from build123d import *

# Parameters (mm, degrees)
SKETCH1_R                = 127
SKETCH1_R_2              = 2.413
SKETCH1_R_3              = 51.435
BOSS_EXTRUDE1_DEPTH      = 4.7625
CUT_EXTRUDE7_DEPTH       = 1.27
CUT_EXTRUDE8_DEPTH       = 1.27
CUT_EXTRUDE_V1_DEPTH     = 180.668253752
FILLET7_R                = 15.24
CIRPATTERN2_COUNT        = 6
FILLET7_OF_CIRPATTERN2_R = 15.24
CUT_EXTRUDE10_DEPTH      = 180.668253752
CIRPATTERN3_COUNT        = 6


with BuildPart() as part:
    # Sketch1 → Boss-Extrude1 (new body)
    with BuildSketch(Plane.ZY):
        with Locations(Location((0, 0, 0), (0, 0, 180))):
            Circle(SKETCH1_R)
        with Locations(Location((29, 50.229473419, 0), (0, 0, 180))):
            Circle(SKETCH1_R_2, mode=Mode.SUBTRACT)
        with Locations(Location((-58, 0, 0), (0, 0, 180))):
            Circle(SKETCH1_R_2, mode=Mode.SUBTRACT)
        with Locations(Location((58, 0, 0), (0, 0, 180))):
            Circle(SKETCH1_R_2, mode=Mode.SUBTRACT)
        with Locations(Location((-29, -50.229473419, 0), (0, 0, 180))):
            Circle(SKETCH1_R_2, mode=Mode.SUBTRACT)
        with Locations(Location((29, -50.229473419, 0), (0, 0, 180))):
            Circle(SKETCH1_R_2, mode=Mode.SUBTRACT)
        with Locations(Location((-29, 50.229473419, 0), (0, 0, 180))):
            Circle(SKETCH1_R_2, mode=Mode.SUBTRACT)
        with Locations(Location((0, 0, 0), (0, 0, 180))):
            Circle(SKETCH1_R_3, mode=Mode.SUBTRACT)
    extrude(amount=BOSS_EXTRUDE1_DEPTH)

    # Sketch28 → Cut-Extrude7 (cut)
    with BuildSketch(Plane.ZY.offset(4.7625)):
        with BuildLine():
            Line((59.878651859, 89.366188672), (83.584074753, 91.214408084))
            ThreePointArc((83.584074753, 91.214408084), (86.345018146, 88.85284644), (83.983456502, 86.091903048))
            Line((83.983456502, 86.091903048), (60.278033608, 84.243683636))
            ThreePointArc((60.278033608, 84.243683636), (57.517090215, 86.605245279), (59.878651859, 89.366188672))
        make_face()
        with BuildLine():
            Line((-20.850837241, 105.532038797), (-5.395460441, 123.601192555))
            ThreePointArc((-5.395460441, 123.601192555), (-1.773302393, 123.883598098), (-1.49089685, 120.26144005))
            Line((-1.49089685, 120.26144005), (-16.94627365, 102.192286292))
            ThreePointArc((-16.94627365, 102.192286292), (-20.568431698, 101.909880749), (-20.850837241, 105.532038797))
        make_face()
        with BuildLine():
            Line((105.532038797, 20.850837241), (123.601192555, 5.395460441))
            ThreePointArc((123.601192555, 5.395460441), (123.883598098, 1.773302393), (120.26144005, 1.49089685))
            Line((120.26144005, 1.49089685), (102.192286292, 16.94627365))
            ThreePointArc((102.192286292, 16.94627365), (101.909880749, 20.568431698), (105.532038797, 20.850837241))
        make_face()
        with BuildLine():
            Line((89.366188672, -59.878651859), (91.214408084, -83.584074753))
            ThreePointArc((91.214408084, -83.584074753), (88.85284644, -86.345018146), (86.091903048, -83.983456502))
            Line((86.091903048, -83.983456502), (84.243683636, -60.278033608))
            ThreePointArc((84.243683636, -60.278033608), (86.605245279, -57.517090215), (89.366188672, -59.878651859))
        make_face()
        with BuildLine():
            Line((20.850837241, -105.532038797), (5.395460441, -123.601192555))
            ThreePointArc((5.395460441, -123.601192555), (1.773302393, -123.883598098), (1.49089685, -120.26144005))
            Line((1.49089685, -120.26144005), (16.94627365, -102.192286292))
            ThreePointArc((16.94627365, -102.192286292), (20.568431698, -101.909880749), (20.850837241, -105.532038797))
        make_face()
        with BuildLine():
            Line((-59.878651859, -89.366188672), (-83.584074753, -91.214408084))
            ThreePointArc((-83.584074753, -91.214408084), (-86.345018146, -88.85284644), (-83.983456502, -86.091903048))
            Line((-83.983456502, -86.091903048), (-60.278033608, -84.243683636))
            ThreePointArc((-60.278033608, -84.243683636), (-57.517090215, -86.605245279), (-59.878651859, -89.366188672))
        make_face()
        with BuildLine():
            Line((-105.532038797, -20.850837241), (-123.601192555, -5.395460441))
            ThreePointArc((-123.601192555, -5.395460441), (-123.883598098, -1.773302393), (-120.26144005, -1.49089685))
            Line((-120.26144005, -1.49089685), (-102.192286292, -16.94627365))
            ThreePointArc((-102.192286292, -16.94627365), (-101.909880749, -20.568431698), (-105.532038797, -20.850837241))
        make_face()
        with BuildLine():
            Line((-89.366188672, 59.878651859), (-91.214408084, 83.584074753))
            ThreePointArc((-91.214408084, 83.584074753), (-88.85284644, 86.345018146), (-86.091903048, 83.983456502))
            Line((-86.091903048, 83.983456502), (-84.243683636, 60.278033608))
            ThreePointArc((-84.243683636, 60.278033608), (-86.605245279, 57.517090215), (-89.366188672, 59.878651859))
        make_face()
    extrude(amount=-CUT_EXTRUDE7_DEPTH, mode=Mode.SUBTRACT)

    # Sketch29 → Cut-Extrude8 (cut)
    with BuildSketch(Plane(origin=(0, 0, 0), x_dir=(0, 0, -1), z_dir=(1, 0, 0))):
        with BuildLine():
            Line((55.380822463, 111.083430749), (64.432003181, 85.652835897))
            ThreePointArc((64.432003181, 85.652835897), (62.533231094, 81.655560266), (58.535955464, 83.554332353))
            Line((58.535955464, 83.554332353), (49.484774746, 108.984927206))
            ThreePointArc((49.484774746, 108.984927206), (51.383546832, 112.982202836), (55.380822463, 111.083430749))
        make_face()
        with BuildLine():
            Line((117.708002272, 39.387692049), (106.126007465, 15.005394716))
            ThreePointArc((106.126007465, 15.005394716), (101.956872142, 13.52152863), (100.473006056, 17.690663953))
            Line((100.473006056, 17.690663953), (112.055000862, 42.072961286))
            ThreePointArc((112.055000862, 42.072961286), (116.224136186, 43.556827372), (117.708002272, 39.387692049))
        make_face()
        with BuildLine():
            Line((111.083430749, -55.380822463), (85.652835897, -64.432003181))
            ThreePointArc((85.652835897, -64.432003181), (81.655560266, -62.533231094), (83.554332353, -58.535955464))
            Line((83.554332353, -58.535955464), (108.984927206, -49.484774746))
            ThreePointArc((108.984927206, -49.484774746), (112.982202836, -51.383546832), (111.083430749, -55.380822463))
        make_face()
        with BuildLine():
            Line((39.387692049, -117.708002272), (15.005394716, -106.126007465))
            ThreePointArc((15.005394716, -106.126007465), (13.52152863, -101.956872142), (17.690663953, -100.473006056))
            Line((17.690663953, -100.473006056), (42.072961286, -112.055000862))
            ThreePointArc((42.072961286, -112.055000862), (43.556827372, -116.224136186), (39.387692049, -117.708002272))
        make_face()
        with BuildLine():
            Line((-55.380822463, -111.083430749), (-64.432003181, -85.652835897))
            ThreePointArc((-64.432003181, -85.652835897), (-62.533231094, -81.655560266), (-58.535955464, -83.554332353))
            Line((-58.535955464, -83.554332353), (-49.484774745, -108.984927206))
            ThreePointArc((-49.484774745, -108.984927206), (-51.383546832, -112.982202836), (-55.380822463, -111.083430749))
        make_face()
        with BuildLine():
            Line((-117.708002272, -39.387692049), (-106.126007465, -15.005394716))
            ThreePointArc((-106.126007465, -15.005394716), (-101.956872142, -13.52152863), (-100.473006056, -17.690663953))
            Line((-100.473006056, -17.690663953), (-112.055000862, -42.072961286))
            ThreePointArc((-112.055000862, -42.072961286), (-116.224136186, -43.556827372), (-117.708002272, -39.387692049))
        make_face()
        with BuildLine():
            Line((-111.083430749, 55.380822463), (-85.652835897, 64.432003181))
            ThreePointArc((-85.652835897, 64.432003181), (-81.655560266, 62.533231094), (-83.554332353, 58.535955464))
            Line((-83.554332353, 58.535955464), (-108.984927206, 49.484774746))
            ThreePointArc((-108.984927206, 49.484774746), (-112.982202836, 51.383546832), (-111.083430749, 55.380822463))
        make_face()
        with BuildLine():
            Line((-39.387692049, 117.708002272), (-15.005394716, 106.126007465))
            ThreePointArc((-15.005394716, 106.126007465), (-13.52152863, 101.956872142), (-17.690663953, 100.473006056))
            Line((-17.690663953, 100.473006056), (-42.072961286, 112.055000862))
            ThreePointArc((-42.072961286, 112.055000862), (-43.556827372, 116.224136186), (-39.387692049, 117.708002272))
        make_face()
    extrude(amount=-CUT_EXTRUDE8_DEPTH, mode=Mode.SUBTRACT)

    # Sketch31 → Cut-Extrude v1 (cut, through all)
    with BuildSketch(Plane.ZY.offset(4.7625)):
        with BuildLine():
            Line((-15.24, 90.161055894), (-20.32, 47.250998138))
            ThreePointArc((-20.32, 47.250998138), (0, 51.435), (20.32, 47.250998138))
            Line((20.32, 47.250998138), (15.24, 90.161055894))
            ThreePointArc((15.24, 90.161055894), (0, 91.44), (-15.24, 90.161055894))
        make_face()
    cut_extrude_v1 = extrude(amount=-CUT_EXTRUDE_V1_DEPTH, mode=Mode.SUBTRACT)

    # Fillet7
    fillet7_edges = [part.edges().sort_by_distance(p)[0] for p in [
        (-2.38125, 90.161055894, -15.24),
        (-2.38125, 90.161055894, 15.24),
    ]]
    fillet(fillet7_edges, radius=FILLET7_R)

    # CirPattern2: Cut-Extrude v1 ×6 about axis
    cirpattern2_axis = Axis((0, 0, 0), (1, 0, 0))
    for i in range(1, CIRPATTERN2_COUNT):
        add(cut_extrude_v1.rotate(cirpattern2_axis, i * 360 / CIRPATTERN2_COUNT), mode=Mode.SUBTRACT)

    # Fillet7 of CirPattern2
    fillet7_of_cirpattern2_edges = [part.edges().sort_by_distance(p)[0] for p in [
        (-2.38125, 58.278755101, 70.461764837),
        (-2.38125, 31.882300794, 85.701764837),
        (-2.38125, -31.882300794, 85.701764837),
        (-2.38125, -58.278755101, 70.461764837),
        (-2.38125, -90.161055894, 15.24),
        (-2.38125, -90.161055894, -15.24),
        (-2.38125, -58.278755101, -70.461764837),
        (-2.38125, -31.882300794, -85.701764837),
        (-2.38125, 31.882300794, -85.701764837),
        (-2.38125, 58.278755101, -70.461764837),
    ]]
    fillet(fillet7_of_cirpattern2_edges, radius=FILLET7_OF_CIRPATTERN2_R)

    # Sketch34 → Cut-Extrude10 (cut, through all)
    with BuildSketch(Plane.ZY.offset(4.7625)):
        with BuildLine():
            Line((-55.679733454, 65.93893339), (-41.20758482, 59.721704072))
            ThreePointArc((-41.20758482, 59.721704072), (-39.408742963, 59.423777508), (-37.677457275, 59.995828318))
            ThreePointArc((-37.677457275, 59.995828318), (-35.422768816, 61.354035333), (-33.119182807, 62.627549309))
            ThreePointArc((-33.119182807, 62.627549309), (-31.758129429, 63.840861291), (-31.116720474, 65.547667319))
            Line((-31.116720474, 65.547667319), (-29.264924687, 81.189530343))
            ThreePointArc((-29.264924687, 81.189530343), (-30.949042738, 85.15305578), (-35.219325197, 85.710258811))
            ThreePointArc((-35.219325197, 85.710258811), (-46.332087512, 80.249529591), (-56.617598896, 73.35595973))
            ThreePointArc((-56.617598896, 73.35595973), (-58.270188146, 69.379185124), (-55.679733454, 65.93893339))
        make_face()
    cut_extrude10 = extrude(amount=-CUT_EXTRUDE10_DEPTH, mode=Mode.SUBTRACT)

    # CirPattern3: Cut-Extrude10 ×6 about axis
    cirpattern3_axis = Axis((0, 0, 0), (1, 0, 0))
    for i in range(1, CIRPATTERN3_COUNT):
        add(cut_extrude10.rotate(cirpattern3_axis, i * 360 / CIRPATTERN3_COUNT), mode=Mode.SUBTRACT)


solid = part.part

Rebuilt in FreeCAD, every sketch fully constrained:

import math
import FreeCAD as App
import Part
import Sketcher

V = App.Vector
Q = App.Units.Quantity


def edges_at(feature, points):
    """Names of the edges that pass closest to the given points."""
    edges = feature.Shape.Edges
    near = lambda p: min(range(len(edges)), key=lambda i: edges[i].distToShape(Part.Vertex(*p))[0])
    return sorted({f"Edge{near(p) + 1}" for p in points})

doc = App.newDocument("Part")
params = doc.addObject("Spreadsheet::Sheet", "Params")
for row, (alias, value) in enumerate([
    ("sketch1_diameter", "10 in"),
    ("sketch1_diameter2", "0.19 in"),
    ("sketch1_diameter3", "4.05 in"),
    ("pad1_length", "0.1875 in"),
    ("pocket1_length", "0.05 in"),
    ("pocket2_length", "0.05 in"),
    ("sketch4_radius", "3.6 in"),
    ("sketch4_radius2", "2.025 in"),
    ("fillet_radius", "0.6 in"),
    ("fillet2_radius", "0.6 in"),
    ("sketch5_radius", "0.15 in"),
], start=1):
    params.set(f"A{row}", alias)
    params.set(f"B{row}", "=" + value)
    params.setAlias(f"B{row}", alias)

body = doc.addObject("PartDesign::Body", "Body")

sketch1 = body.newObject("Sketcher::SketchObject", "Sketch")
sketch1.AttachmentSupport = (doc.getObject("YZ_Plane"), [""])
sketch1.MapMode = "FlatFace"
sketch1.addGeometry(Part.Circle(V(0, 0, 0), V(0, 0, 1), 127), False)
sketch1.addGeometry(Part.Circle(V(50.2, 29, 0), V(0, 0, 1), 2.4), False)
sketch1.addGeometry(Part.Circle(V(0, 58, 0), V(0, 0, 1), 2.4), False)
sketch1.addGeometry(Part.Circle(V(50.2, -29, 0), V(0, 0, 1), 2.4), False)
sketch1.addGeometry(Part.Circle(V(-50.2, 29, 0), V(0, 0, 1), 2.4), False)
sketch1.addGeometry(Part.Circle(V(0, 0, 0), V(0, 0, 1), 51.4), False)
sketch1.addGeometry(Part.Circle(V(0, -58, 0), V(0, 0, 1), 2.4), False)
sketch1.addGeometry(Part.Circle(V(-50.2, -29, 0), V(0, 0, 1), 2.4), False)
sketch1.addConstraint(Sketcher.Constraint("Coincident", 0, 3, -1, 1))
sketch1.addConstraint(Sketcher.Constraint("Coincident", 5, 3, -1, 1))
sketch1.addConstraint(Sketcher.Constraint("Equal", 1, 2))
sketch1.addConstraint(Sketcher.Constraint("Equal", 2, 3))
sketch1.addConstraint(Sketcher.Constraint("Equal", 3, 4))
sketch1.addConstraint(Sketcher.Constraint("Equal", 4, 6))
sketch1.addConstraint(Sketcher.Constraint("Equal", 6, 7))
sketch1.addConstraint(Sketcher.Constraint("Symmetric", 3, 3, 4, 3, -1, 1))
sketch1.addConstraint(Sketcher.Constraint("Symmetric", 2, 3, 6, 3, -1, 1))
sketch1.addConstraint(Sketcher.Constraint("Symmetric", 1, 3, 7, 3, -1, 1))
sketch1.addConstraint(Sketcher.Constraint("Symmetric", 1, 3, 4, 3, -2))
sketch1.addConstraint(Sketcher.Constraint("PointOnObject", 2, 3, -2))
sketch1.addConstraint(Sketcher.Constraint("Diameter", 0, Q("10 in")))
sketch1.addConstraint(Sketcher.Constraint("Diameter", 1, Q("0.19 in")))
sketch1.addConstraint(Sketcher.Constraint("Diameter", 5, Q("4.05 in")))
sketch1.addConstraint(Sketcher.Constraint("DistanceY", -1, 1, 1, 3, 29.0))
sketch1.addConstraint(Sketcher.Constraint("DistanceY", -1, 1, 2, 3, 58.0))
sketch1.addConstraint(Sketcher.Constraint("DistanceX", -1, 1, 1, 3, 50.229473))
sketch1.setExpression("Constraints[12]", "Params.sketch1_diameter")
sketch1.setExpression("Constraints[13]", "Params.sketch1_diameter2")
sketch1.setExpression("Constraints[14]", "Params.sketch1_diameter3")
pad1 = body.newObject("PartDesign::Pad", "Pad")
pad1.Profile = sketch1
pad1.setExpression("Length", "Params.pad1_length")
pad1.Reversed = True

sketch2 = body.newObject("Sketcher::SketchObject", "Sketch001")
sketch2.AttachmentSupport = (doc.getObject("YZ_Plane"), [""])
sketch2.MapMode = "FlatFace"
sketch2.AttachmentOffset = App.Placement(V(0, 0, -0.1875 * 25.4), App.Rotation())
sketch2.addGeometry(Part.LineSegment(V(91.2, 83.6, 0), V(89.4, 59.9, 0)), False)
sketch2.addGeometry(Part.ArcOfCircle(Part.Circle(V(86.8, 60.1, 0), V(0, 0, 1), 2.6), math.radians(176), math.radians(356)), False)
sketch2.addGeometry(Part.LineSegment(V(84.2, 60.3, 0), V(86.1, 84, 0)), False)
sketch2.addGeometry(Part.ArcOfCircle(Part.Circle(V(88.7, 83.8, 0), V(0, 0, 1), 2.6), math.radians(-4), math.radians(176)), False)
sketch2.addGeometry(Part.LineSegment(V(123.6, -5.4, 0), V(105.5, -20.9, 0)), False)
sketch2.addGeometry(Part.ArcOfCircle(Part.Circle(V(103.9, -18.9, 0), V(0, 0, 1), 2.6), math.radians(131), math.radians(311)), False)
sketch2.addGeometry(Part.LineSegment(V(102.2, -16.9, 0), V(120.3, -1.5, 0)), False)
sketch2.addGeometry(Part.ArcOfCircle(Part.Circle(V(121.9, -3.4, 0), V(0, 0, 1), 2.6), math.radians(-49), math.radians(131)), False)
sketch2.addGeometry(Part.LineSegment(V(5.4, 123.6, 0), V(20.9, 105.5, 0)), False)
sketch2.addGeometry(Part.ArcOfCircle(Part.Circle(V(18.9, 103.9, 0), V(0, 0, 1), 2.6), math.radians(-139), math.radians(41)), False)
sketch2.addGeometry(Part.LineSegment(V(16.9, 102.2, 0), V(1.5, 120.3, 0)), False)
sketch2.addGeometry(Part.ArcOfCircle(Part.Circle(V(3.4, 121.9, 0), V(0, 0, 1), 2.6), math.radians(41), math.radians(221)), False)
sketch2.addGeometry(Part.LineSegment(V(-83.6, 91.2, 0), V(-59.9, 89.4, 0)), False)
sketch2.addGeometry(Part.ArcOfCircle(Part.Circle(V(-60.1, 86.8, 0), V(0, 0, 1), 2.6), math.radians(-94), math.radians(86)), False)
sketch2.addGeometry(Part.LineSegment(V(-60.3, 84.2, 0), V(-84, 86.1, 0)), False)
sketch2.addGeometry(Part.ArcOfCircle(Part.Circle(V(-83.8, 88.7, 0), V(0, 0, 1), 2.6), math.radians(86), math.radians(266)), False)
sketch2.addGeometry(Part.LineSegment(V(-123.6, 5.4, 0), V(-105.5, 20.9, 0)), False)
sketch2.addGeometry(Part.ArcOfCircle(Part.Circle(V(-103.9, 18.9, 0), V(0, 0, 1), 2.6), math.radians(-49), math.radians(131)), False)
sketch2.addGeometry(Part.LineSegment(V(-102.2, 16.9, 0), V(-120.3, 1.5, 0)), False)
sketch2.addGeometry(Part.ArcOfCircle(Part.Circle(V(-121.9, 3.4, 0), V(0, 0, 1), 2.6), math.radians(131), math.radians(311)), False)
sketch2.addGeometry(Part.LineSegment(V(-91.2, -83.6, 0), V(-89.4, -59.9, 0)), False)
sketch2.addGeometry(Part.ArcOfCircle(Part.Circle(V(-86.8, -60.1, 0), V(0, 0, 1), 2.6), math.radians(-4), math.radians(176)), False)
sketch2.addGeometry(Part.LineSegment(V(-84.2, -60.3, 0), V(-86.1, -84, 0)), False)
sketch2.addGeometry(Part.ArcOfCircle(Part.Circle(V(-88.7, -83.8, 0), V(0, 0, 1), 2.6), math.radians(176), math.radians(356)), False)
sketch2.addGeometry(Part.LineSegment(V(-5.4, -123.6, 0), V(-20.9, -105.5, 0)), False)
sketch2.addGeometry(Part.ArcOfCircle(Part.Circle(V(-18.9, -103.9, 0), V(0, 0, 1), 2.6), math.radians(41), math.radians(221)), False)
sketch2.addGeometry(Part.LineSegment(V(-16.9, -102.2, 0), V(-1.5, -120.3, 0)), False)
sketch2.addGeometry(Part.ArcOfCircle(Part.Circle(V(-3.4, -121.9, 0), V(0, 0, 1), 2.6), math.radians(-139), math.radians(41)), False)
sketch2.addGeometry(Part.LineSegment(V(83.6, -91.2, 0), V(59.9, -89.4, 0)), False)
sketch2.addGeometry(Part.ArcOfCircle(Part.Circle(V(60.1, -86.8, 0), V(0, 0, 1), 2.6), math.radians(86), math.radians(266)), False)
sketch2.addGeometry(Part.LineSegment(V(60.3, -84.2, 0), V(84, -86.1, 0)), False)
sketch2.addGeometry(Part.ArcOfCircle(Part.Circle(V(83.8, -88.7, 0), V(0, 0, 1), 2.6), math.radians(-94), math.radians(86)), False)
sketch2.addConstraint(Sketcher.Constraint("Tangent", 0, 2, 1, 2))
sketch2.addConstraint(Sketcher.Constraint("Tangent", 1, 1, 2, 1))
sketch2.addConstraint(Sketcher.Constraint("Tangent", 2, 2, 3, 2))
sketch2.addConstraint(Sketcher.Constraint("Tangent", 3, 1, 0, 1))
sketch2.addConstraint(Sketcher.Constraint("Tangent", 4, 2, 5, 2))
sketch2.addConstraint(Sketcher.Constraint("Tangent", 5, 1, 6, 1))
sketch2.addConstraint(Sketcher.Constraint("Tangent", 6, 2, 7, 2))
sketch2.addConstraint(Sketcher.Constraint("Tangent", 7, 1, 4, 1))
sketch2.addConstraint(Sketcher.Constraint("Tangent", 8, 2, 9, 2))
sketch2.addConstraint(Sketcher.Constraint("Tangent", 9, 1, 10, 1))
sketch2.addConstraint(Sketcher.Constraint("Tangent", 10, 2, 11, 2))
sketch2.addConstraint(Sketcher.Constraint("Tangent", 11, 1, 8, 1))
sketch2.addConstraint(Sketcher.Constraint("Tangent", 12, 2, 13, 2))
sketch2.addConstraint(Sketcher.Constraint("Tangent", 13, 1, 14, 1))
sketch2.addConstraint(Sketcher.Constraint("Tangent", 14, 2, 15, 2))
sketch2.addConstraint(Sketcher.Constraint("Tangent", 15, 1, 12, 1))
sketch2.addConstraint(Sketcher.Constraint("Tangent", 16, 2, 17, 2))
sketch2.addConstraint(Sketcher.Constraint("Tangent", 17, 1, 18, 1))
sketch2.addConstraint(Sketcher.Constraint("Tangent", 18, 2, 19, 2))
sketch2.addConstraint(Sketcher.Constraint("Tangent", 19, 1, 16, 1))
sketch2.addConstraint(Sketcher.Constraint("Tangent", 20, 2, 21, 2))
sketch2.addConstraint(Sketcher.Constraint("Tangent", 21, 1, 22, 1))
sketch2.addConstraint(Sketcher.Constraint("Tangent", 22, 2, 23, 2))
sketch2.addConstraint(Sketcher.Constraint("Tangent", 23, 1, 20, 1))
sketch2.addConstraint(Sketcher.Constraint("Tangent", 24, 2, 25, 2))
sketch2.addConstraint(Sketcher.Constraint("Tangent", 25, 1, 26, 1))
sketch2.addConstraint(Sketcher.Constraint("Tangent", 26, 2, 27, 2))
sketch2.addConstraint(Sketcher.Constraint("Tangent", 27, 1, 24, 1))
sketch2.addConstraint(Sketcher.Constraint("Tangent", 28, 2, 29, 2))
sketch2.addConstraint(Sketcher.Constraint("Tangent", 29, 1, 30, 1))
sketch2.addConstraint(Sketcher.Constraint("Tangent", 30, 2, 31, 2))
sketch2.addConstraint(Sketcher.Constraint("Tangent", 31, 1, 28, 1))
sketch2.addConstraint(Sketcher.Constraint("Equal", 1, 3))
sketch2.addConstraint(Sketcher.Constraint("Equal", 3, 5))
sketch2.addConstraint(Sketcher.Constraint("Equal", 5, 7))
sketch2.addConstraint(Sketcher.Constraint("Equal", 7, 9))
sketch2.addConstraint(Sketcher.Constraint("Equal", 9, 11))
sketch2.addConstraint(Sketcher.Constraint("Equal", 11, 13))
sketch2.addConstraint(Sketcher.Constraint("Equal", 13, 15))
sketch2.addConstraint(Sketcher.Constraint("Equal", 15, 17))
sketch2.addConstraint(Sketcher.Constraint("Equal", 17, 19))
sketch2.addConstraint(Sketcher.Constraint("Equal", 19, 21))
sketch2.addConstraint(Sketcher.Constraint("Equal", 21, 23))
sketch2.addConstraint(Sketcher.Constraint("Equal", 23, 25))
sketch2.addConstraint(Sketcher.Constraint("Equal", 25, 27))
sketch2.addConstraint(Sketcher.Constraint("Equal", 27, 29))
sketch2.addConstraint(Sketcher.Constraint("Equal", 29, 31))
sketch2.addConstraint(Sketcher.Constraint("Symmetric", 5, 3, 17, 3, -1, 1))
sketch2.addConstraint(Sketcher.Constraint("Symmetric", 7, 3, 19, 3, -1, 1))
sketch2.addConstraint(Sketcher.Constraint("Symmetric", 1, 3, 21, 3, -1, 1))
sketch2.addConstraint(Sketcher.Constraint("Symmetric", 3, 3, 23, 3, -1, 1))
sketch2.addConstraint(Sketcher.Constraint("Symmetric", 9, 3, 25, 3, -1, 1))
sketch2.addConstraint(Sketcher.Constraint("Symmetric", 11, 3, 27, 3, -1, 1))
sketch2.addConstraint(Sketcher.Constraint("Symmetric", 13, 3, 29, 3, -1, 1))
sketch2.addConstraint(Sketcher.Constraint("Symmetric", 15, 3, 31, 3, -1, 1))
sketch2.addConstraint(Sketcher.Constraint("Perpendicular", 6, 8))
sketch2.addConstraint(Sketcher.Constraint("Perpendicular", 2, 12))
sketch2.addConstraint(Sketcher.Constraint("Equal", 2, 4))
sketch2.addConstraint(Sketcher.Constraint("Equal", 6, 8))
sketch2.addConstraint(Sketcher.Constraint("Equal", 10, 12))
sketch2.addConstraint(Sketcher.Constraint("Radius", 1, 2.569025))
sketch2.addConstraint(Sketcher.Constraint("DistanceY", 5, 3, 1, 3, 78.976898))
sketch2.addConstraint(Sketcher.Constraint("DistanceX", 9, 3, 3, 3, 69.7546))
sketch2.addConstraint(Sketcher.Constraint("DistanceX", 13, 3, 9, 3, 78.976898))
sketch2.addConstraint(Sketcher.Constraint("DistanceX", 15, 3, 1, 3, 170.588702))
sketch2.addConstraint(Sketcher.Constraint("DistanceY", 17, 3, 15, 3, 69.7546))
sketch2.addConstraint(Sketcher.Constraint("DistanceX", 17, 3, 1, 3, 190.667099))
sketch2.addConstraint(Sketcher.Constraint("DistanceY", 29, 3, 4, 2, 65.954099))
sketch2.addConstraint(Sketcher.Constraint("DistanceX", 4, 2, 6, 2, 14.729401))
sketch2.addConstraint(Sketcher.Constraint("DistanceY", 7, 3, -1, 1, 3.443179))
sketch2.addConstraint(Sketcher.Constraint("DistanceX", -1, 1, 11, 3, 3.443179))
sketch2.addConstraint(Sketcher.Constraint("DistanceY", -1, 1, 8, 2, 105.532039))
pocket1 = body.newObject("PartDesign::Pocket", "Pocket")
pocket1.Profile = sketch2
pocket1.setExpression("Length", "Params.pocket1_length")
pocket1.Reversed = True

sketch3 = body.newObject("Sketcher::SketchObject", "Sketch002")
sketch3.AttachmentSupport = (doc.getObject("YZ_Plane"), [""])
sketch3.MapMode = "FlatFace"
sketch3.addGeometry(Part.LineSegment(V(85.7, -64.4, 0), V(111.1, -55.4, 0)), False)
sketch3.addGeometry(Part.ArcOfCircle(Part.Circle(V(110, -52.4, 0), V(0, 0, 1), 3.1), math.radians(-70), math.radians(110)), False)
sketch3.addGeometry(Part.LineSegment(V(109, -49.5, 0), V(83.6, -58.5, 0)), False)
sketch3.addGeometry(Part.ArcOfCircle(Part.Circle(V(84.6, -61.5, 0), V(0, 0, 1), 3.1), math.radians(110), math.radians(290)), False)
sketch3.addGeometry(Part.LineSegment(V(15, -106.1, 0), V(39.4, -117.7, 0)), False)
sketch3.addGeometry(Part.ArcOfCircle(Part.Circle(V(40.7, -114.9, 0), V(0, 0, 1), 3.1), math.radians(-115), math.radians(65)), False)
sketch3.addGeometry(Part.LineSegment(V(42.1, -112.1, 0), V(17.7, -100.5, 0)), False)
sketch3.addGeometry(Part.ArcOfCircle(Part.Circle(V(16.3, -103.3, 0), V(0, 0, 1), 3.1), math.radians(65), math.radians(245)), False)
sketch3.addGeometry(Part.LineSegment(V(-64.4, -85.7, 0), V(-55.4, -111.1, 0)), False)
sketch3.addGeometry(Part.ArcOfCircle(Part.Circle(V(-52.4, -110, 0), V(0, 0, 1), 3.1), math.radians(-160), math.radians(20)), False)
sketch3.addGeometry(Part.LineSegment(V(-49.5, -109, 0), V(-58.5, -83.6, 0)), False)
sketch3.addGeometry(Part.ArcOfCircle(Part.Circle(V(-61.5, -84.6, 0), V(0, 0, 1), 3.1), math.radians(20), math.radians(200)), False)
sketch3.addGeometry(Part.LineSegment(V(-106.1, -15, 0), V(-117.7, -39.4, 0)), False)
sketch3.addGeometry(Part.ArcOfCircle(Part.Circle(V(-114.9, -40.7, 0), V(0, 0, 1), 3.1), math.radians(155), math.radians(335)), False)
sketch3.addGeometry(Part.LineSegment(V(-112.1, -42.1, 0), V(-100.5, -17.7, 0)), False)
sketch3.addGeometry(Part.ArcOfCircle(Part.Circle(V(-103.3, -16.3, 0), V(0, 0, 1), 3.1), math.radians(-25), math.radians(155)), False)
sketch3.addGeometry(Part.LineSegment(V(-85.7, 64.4, 0), V(-111.1, 55.4, 0)), False)
sketch3.addGeometry(Part.ArcOfCircle(Part.Circle(V(-110, 52.4, 0), V(0, 0, 1), 3.1), math.radians(110), math.radians(290)), False)
sketch3.addGeometry(Part.LineSegment(V(-109, 49.5, 0), V(-83.6, 58.5, 0)), False)
sketch3.addGeometry(Part.ArcOfCircle(Part.Circle(V(-84.6, 61.5, 0), V(0, 0, 1), 3.1), math.radians(-70), math.radians(110)), False)
sketch3.addGeometry(Part.LineSegment(V(-15, 106.1, 0), V(-39.4, 117.7, 0)), False)
sketch3.addGeometry(Part.ArcOfCircle(Part.Circle(V(-40.7, 114.9, 0), V(0, 0, 1), 3.1), math.radians(65), math.radians(245)), False)
sketch3.addGeometry(Part.LineSegment(V(-42.1, 112.1, 0), V(-17.7, 100.5, 0)), False)
sketch3.addGeometry(Part.ArcOfCircle(Part.Circle(V(-16.3, 103.3, 0), V(0, 0, 1), 3.1), math.radians(-115), math.radians(65)), False)
sketch3.addGeometry(Part.LineSegment(V(64.4, 85.7, 0), V(55.4, 111.1, 0)), False)
sketch3.addGeometry(Part.ArcOfCircle(Part.Circle(V(52.4, 110, 0), V(0, 0, 1), 3.1), math.radians(20), math.radians(200)), False)
sketch3.addGeometry(Part.LineSegment(V(49.5, 109, 0), V(58.5, 83.6, 0)), False)
sketch3.addGeometry(Part.ArcOfCircle(Part.Circle(V(61.5, 84.6, 0), V(0, 0, 1), 3.1), math.radians(-160), math.radians(20)), False)
sketch3.addGeometry(Part.LineSegment(V(106.1, 15, 0), V(117.7, 39.4, 0)), False)
sketch3.addGeometry(Part.ArcOfCircle(Part.Circle(V(114.9, 40.7, 0), V(0, 0, 1), 3.1), math.radians(-25), math.radians(155)), False)
sketch3.addGeometry(Part.LineSegment(V(112.1, 42.1, 0), V(100.5, 17.7, 0)), False)
sketch3.addGeometry(Part.ArcOfCircle(Part.Circle(V(103.3, 16.3, 0), V(0, 0, 1), 3.1), math.radians(155), math.radians(335)), False)
sketch3.addConstraint(Sketcher.Constraint("Tangent", 0, 2, 1, 1))
sketch3.addConstraint(Sketcher.Constraint("Tangent", 1, 2, 2, 1))
sketch3.addConstraint(Sketcher.Constraint("Tangent", 2, 2, 3, 1))
sketch3.addConstraint(Sketcher.Constraint("Tangent", 3, 2, 0, 1))
sketch3.addConstraint(Sketcher.Constraint("Tangent", 4, 2, 5, 1))
sketch3.addConstraint(Sketcher.Constraint("Tangent", 5, 2, 6, 1))
sketch3.addConstraint(Sketcher.Constraint("Tangent", 6, 2, 7, 1))
sketch3.addConstraint(Sketcher.Constraint("Tangent", 7, 2, 4, 1))
sketch3.addConstraint(Sketcher.Constraint("Tangent", 8, 2, 9, 1))
sketch3.addConstraint(Sketcher.Constraint("Tangent", 9, 2, 10, 1))
sketch3.addConstraint(Sketcher.Constraint("Tangent", 10, 2, 11, 1))
sketch3.addConstraint(Sketcher.Constraint("Tangent", 11, 2, 8, 1))
sketch3.addConstraint(Sketcher.Constraint("Tangent", 12, 2, 13, 1))
sketch3.addConstraint(Sketcher.Constraint("Tangent", 13, 2, 14, 1))
sketch3.addConstraint(Sketcher.Constraint("Tangent", 14, 2, 15, 1))
sketch3.addConstraint(Sketcher.Constraint("Tangent", 15, 2, 12, 1))
sketch3.addConstraint(Sketcher.Constraint("Tangent", 16, 2, 17, 1))
sketch3.addConstraint(Sketcher.Constraint("Tangent", 17, 2, 18, 1))
sketch3.addConstraint(Sketcher.Constraint("Tangent", 18, 2, 19, 1))
sketch3.addConstraint(Sketcher.Constraint("Tangent", 19, 2, 16, 1))
sketch3.addConstraint(Sketcher.Constraint("Tangent", 20, 2, 21, 1))
sketch3.addConstraint(Sketcher.Constraint("Tangent", 21, 2, 22, 1))
sketch3.addConstraint(Sketcher.Constraint("Tangent", 22, 2, 23, 1))
sketch3.addConstraint(Sketcher.Constraint("Tangent", 23, 2, 20, 1))
sketch3.addConstraint(Sketcher.Constraint("Tangent", 24, 2, 25, 1))
sketch3.addConstraint(Sketcher.Constraint("Tangent", 25, 2, 26, 1))
sketch3.addConstraint(Sketcher.Constraint("Tangent", 26, 2, 27, 1))
sketch3.addConstraint(Sketcher.Constraint("Tangent", 27, 2, 24, 1))
sketch3.addConstraint(Sketcher.Constraint("Tangent", 28, 2, 29, 1))
sketch3.addConstraint(Sketcher.Constraint("Tangent", 29, 2, 30, 1))
sketch3.addConstraint(Sketcher.Constraint("Tangent", 30, 2, 31, 1))
sketch3.addConstraint(Sketcher.Constraint("Tangent", 31, 2, 28, 1))
sketch3.addConstraint(Sketcher.Constraint("Equal", 1, 3))
sketch3.addConstraint(Sketcher.Constraint("Equal", 3, 5))
sketch3.addConstraint(Sketcher.Constraint("Equal", 5, 7))
sketch3.addConstraint(Sketcher.Constraint("Equal", 7, 9))
sketch3.addConstraint(Sketcher.Constraint("Equal", 9, 11))
sketch3.addConstraint(Sketcher.Constraint("Equal", 11, 13))
sketch3.addConstraint(Sketcher.Constraint("Equal", 13, 15))
sketch3.addConstraint(Sketcher.Constraint("Equal", 15, 17))
sketch3.addConstraint(Sketcher.Constraint("Equal", 17, 19))
sketch3.addConstraint(Sketcher.Constraint("Equal", 19, 21))
sketch3.addConstraint(Sketcher.Constraint("Equal", 21, 23))
sketch3.addConstraint(Sketcher.Constraint("Equal", 23, 25))
sketch3.addConstraint(Sketcher.Constraint("Equal", 25, 27))
sketch3.addConstraint(Sketcher.Constraint("Equal", 27, 29))
sketch3.addConstraint(Sketcher.Constraint("Equal", 29, 31))
sketch3.addConstraint(Sketcher.Constraint("Symmetric", 1, 3, 17, 3, -1, 1))
sketch3.addConstraint(Sketcher.Constraint("Symmetric", 3, 3, 19, 3, -1, 1))
sketch3.addConstraint(Sketcher.Constraint("Symmetric", 5, 3, 21, 3, -1, 1))
sketch3.addConstraint(Sketcher.Constraint("Symmetric", 7, 3, 23, 3, -1, 1))
sketch3.addConstraint(Sketcher.Constraint("Symmetric", 9, 3, 25, 3, -1, 1))
sketch3.addConstraint(Sketcher.Constraint("Symmetric", 11, 3, 27, 3, -1, 1))
sketch3.addConstraint(Sketcher.Constraint("Symmetric", 13, 3, 29, 3, -1, 1))
sketch3.addConstraint(Sketcher.Constraint("Symmetric", 15, 3, 31, 3, -1, 1))
sketch3.addConstraint(Sketcher.Constraint("Perpendicular", 2, 8))
sketch3.addConstraint(Sketcher.Constraint("Perpendicular", 6, 12))
sketch3.addConstraint(Sketcher.Constraint("Equal", 2, 4))
sketch3.addConstraint(Sketcher.Constraint("Equal", 6, 8))
sketch3.addConstraint(Sketcher.Constraint("Equal", 10, 12))
sketch3.addConstraint(Sketcher.Constraint("Radius", 1, 3.129181))
sketch3.addConstraint(Sketcher.Constraint("DistanceY", 1, 3, -1, 1, 52.432799))
sketch3.addConstraint(Sketcher.Constraint("DistanceY", 5, 3, -1, 1, 114.881502))
sketch3.addConstraint(Sketcher.Constraint("DistanceX", 9, 3, -1, 1, 52.432799))
sketch3.addConstraint(Sketcher.Constraint("DistanceX", 13, 3, -1, 1, 114.881502))
sketch3.addConstraint(Sketcher.Constraint("DistanceY", 5, 2, -1, 1, 112.055001))
sketch3.addConstraint(Sketcher.Constraint("DistanceY", 9, 3, 3, 3, 48.5502))
sketch3.addConstraint(Sketcher.Constraint("DistanceX", 17, 3, 11, 3, 48.5502))
sketch3.addConstraint(Sketcher.Constraint("DistanceY", 1, 2, 29, 3, 90.215101))
sketch3.addConstraint(Sketcher.Constraint("DistanceX", 2, 2, 0, 2, 27.529098))
sketch3.addConstraint(Sketcher.Constraint("DistanceY", 4, 2, 3, 2, 53.275999))
sketch3.addConstraint(Sketcher.Constraint("DistanceX", -1, 1, 7, 3, 16.348029))
pocket2 = body.newObject("PartDesign::Pocket", "Pocket001")
pocket2.Profile = sketch3
pocket2.setExpression("Length", "Params.pocket2_length")

sketch4 = body.newObject("Sketcher::SketchObject", "Sketch003")
sketch4.AttachmentSupport = (doc.getObject("YZ_Plane"), [""])
sketch4.MapMode = "FlatFace"
sketch4.AttachmentOffset = App.Placement(V(0, 0, -0.1875 * 25.4), App.Rotation())
sketch4.addGeometry(Part.LineSegment(V(90, -15, 0), V(47, -20, 0)), False)
sketch4.addGeometry(Part.ArcOfCircle(Part.Circle(V(0, 0, 0), V(0, 0, 1), 51), math.radians(-23), math.radians(23)), False)
sketch4.addGeometry(Part.LineSegment(V(47, 20, 0), V(90, 15, 0)), False)
sketch4.addGeometry(Part.ArcOfCircle(Part.Circle(V(0, 0, 0), V(0, 0, 1), 91), math.radians(-9.59), math.radians(9.59)), False)
sketch4.addConstraint(Sketcher.Constraint("Coincident", 0, 2, 1, 1))
sketch4.addConstraint(Sketcher.Constraint("Coincident", 1, 2, 2, 1))
sketch4.addConstraint(Sketcher.Constraint("Coincident", 2, 2, 3, 2))
sketch4.addConstraint(Sketcher.Constraint("Coincident", 3, 1, 0, 1))
sketch4.addConstraint(Sketcher.Constraint("Coincident", 1, 3, -1, 1))
sketch4.addConstraint(Sketcher.Constraint("Coincident", 3, 3, -1, 1))
sketch4.addConstraint(Sketcher.Constraint("Vertical", 0, 2, 1, 2))
sketch4.addConstraint(Sketcher.Constraint("Vertical", 2, 2, 3, 1))
sketch4.addConstraint(Sketcher.Constraint("Radius", 3, Q("3.6 in")))
sketch4.addConstraint(Sketcher.Constraint("Radius", 1, Q("2.025 in")))
sketch4.addConstraint(Sketcher.Constraint("DistanceY", 0, 2, -1, 1, Q("0.8 in")))
sketch4.addConstraint(Sketcher.Constraint("DistanceY", -1, 1, 2, 2, Q("0.6 in")))
sketch4.setExpression("Constraints[8]", "Params.sketch4_radius")
sketch4.setExpression("Constraints[9]", "Params.sketch4_radius2")
pocket3 = body.newObject("PartDesign::Pocket", "Pocket002")
pocket3.Profile = sketch4
pocket3.Type = "ThroughAll"
pocket3.Reversed = True
doc.recompute()

fillet = body.newObject("PartDesign::Fillet", "Fillet")
fillet.Base = (pocket3, edges_at(pocket3, [(-2.381, 90.161, -15.24), (-2.381, 90.161, 15.24)]))
fillet.setExpression("Radius", "Params.fillet_radius")
doc.recompute()

polarpattern = body.newObject("PartDesign::PolarPattern", "PolarPattern")
polarpattern.Originals = [pocket3]
polarpattern.Axis = (doc.getObject("X_Axis"), [""])
polarpattern.Angle = 360
polarpattern.Occurrences = 6
body.Tip = polarpattern
doc.recompute()

fillet2 = body.newObject("PartDesign::Fillet", "Fillet001")
fillet2.Base = (polarpattern, edges_at(polarpattern, [
    (-2.381, 58.279, 70.462),
    (-2.381, 31.882, 85.702),
    (-2.381, -31.882, 85.702),
    (-2.381, -58.279, 70.462),
    (-2.381, -90.161, 15.24),
    (-2.381, -90.161, -15.24),
    (-2.381, -58.279, -70.462),
    (-2.381, -31.882, -85.702),
    (-2.381, 31.882, -85.702),
    (-2.381, 58.279, -70.462),
]))
fillet2.setExpression("Radius", "Params.fillet2_radius")

sketch5 = body.newObject("Sketcher::SketchObject", "Sketch004")
sketch5.AttachmentSupport = (doc.getObject("YZ_Plane"), [""])
sketch5.MapMode = "FlatFace"
sketch5.AttachmentOffset = App.Placement(V(0, 0, -0.1875 * 25.4), App.Rotation())
sketch5.addGeometry(Part.LineSegment(V(65.9, -55.7, 0), V(59.7, -41.2, 0)), False)
sketch5.addGeometry(Part.ArcOfCircle(Part.Circle(V(63.2, -39.7, 0), V(0, 0, 1), 3.8), math.radians(148), math.radians(203)), False)
sketch5.addGeometry(Part.ArcOfCircle(Part.Circle(V(0, 0, 0), V(0, 0, 1), 70.8), math.radians(-32.13), math.radians(-27.87)), False)
sketch5.addGeometry(Part.ArcOfCircle(Part.Circle(V(66, -34.9, 0), V(0, 0, 1), 3.8), math.radians(97), math.radians(152)), False)
sketch5.addGeometry(Part.LineSegment(V(65.5, -31.1, 0), V(81.2, -29.3, 0)), False)
sketch5.addGeometry(Part.ArcOfCircle(Part.Circle(V(81.7, -33.6, 0), V(0, 0, 1), 4.3), math.radians(-22), math.radians(97)), False)
sketch5.addGeometry(Part.ArcOfCircle(Part.Circle(V(0, 0, 0), V(0, 0, 1), 92.7), math.radians(-37.66), math.radians(-22.34)), False)
sketch5.addGeometry(Part.ArcOfCircle(Part.Circle(V(69.9, -54, 0), V(0, 0, 1), 4.3), math.radians(-157), math.radians(-38)), False)
sketch5.addConstraint(Sketcher.Constraint("Tangent", 0, 2, 1, 2))
sketch5.addConstraint(Sketcher.Constraint("Tangent", 1, 1, 2, 1))
sketch5.addConstraint(Sketcher.Constraint("Tangent", 2, 2, 3, 2))
sketch5.addConstraint(Sketcher.Constraint("Tangent", 3, 1, 4, 1))
sketch5.addConstraint(Sketcher.Constraint("Tangent", 4, 2, 5, 2))
sketch5.addConstraint(Sketcher.Constraint("Tangent", 5, 1, 6, 2))
sketch5.addConstraint(Sketcher.Constraint("Tangent", 6, 1, 7, 2))
sketch5.addConstraint(Sketcher.Constraint("Tangent", 7, 1, 0, 1))
sketch5.addConstraint(Sketcher.Constraint("Coincident", 2, 3, -1, 1))
sketch5.addConstraint(Sketcher.Constraint("Coincident", 6, 3, -1, 1))
sketch5.addConstraint(Sketcher.Constraint("Equal", 1, 3))
sketch5.addConstraint(Sketcher.Constraint("Equal", 5, 7))
sketch5.addConstraint(Sketcher.Constraint("Equal", 0, 4))
sketch5.addConstraint(Sketcher.Constraint("Radius", 1, Q("0.15 in")))
sketch5.addConstraint(Sketcher.Constraint("Radius", 5, 4.336339))
sketch5.addConstraint(Sketcher.Constraint("Radius", 2, 70.845538))
sketch5.addConstraint(Sketcher.Constraint("Radius", 6, 92.664175))
sketch5.addConstraint(Sketcher.Constraint("DistanceY", 3, 3, -1, 1, 34.900298))
sketch5.addConstraint(Sketcher.Constraint("DistanceY", 6, 1, -1, 1, 56.617599))
sketch5.addConstraint(Sketcher.Constraint("DistanceY", 5, 1, 4, 2, 5.954401))
sketch5.setExpression("Constraints[13]", "Params.sketch5_radius")
pocket4 = body.newObject("PartDesign::Pocket", "Pocket003")
pocket4.Profile = sketch5
pocket4.Type = "ThroughAll"
pocket4.Reversed = True
doc.recompute()

polarpattern2 = body.newObject("PartDesign::PolarPattern", "PolarPattern001")
polarpattern2.Originals = [pocket4]
polarpattern2.Axis = (doc.getObject("X_Axis"), [""])
polarpattern2.Angle = 360
polarpattern2.Occurrences = 6
body.Tip = polarpattern2

doc.recompute()
